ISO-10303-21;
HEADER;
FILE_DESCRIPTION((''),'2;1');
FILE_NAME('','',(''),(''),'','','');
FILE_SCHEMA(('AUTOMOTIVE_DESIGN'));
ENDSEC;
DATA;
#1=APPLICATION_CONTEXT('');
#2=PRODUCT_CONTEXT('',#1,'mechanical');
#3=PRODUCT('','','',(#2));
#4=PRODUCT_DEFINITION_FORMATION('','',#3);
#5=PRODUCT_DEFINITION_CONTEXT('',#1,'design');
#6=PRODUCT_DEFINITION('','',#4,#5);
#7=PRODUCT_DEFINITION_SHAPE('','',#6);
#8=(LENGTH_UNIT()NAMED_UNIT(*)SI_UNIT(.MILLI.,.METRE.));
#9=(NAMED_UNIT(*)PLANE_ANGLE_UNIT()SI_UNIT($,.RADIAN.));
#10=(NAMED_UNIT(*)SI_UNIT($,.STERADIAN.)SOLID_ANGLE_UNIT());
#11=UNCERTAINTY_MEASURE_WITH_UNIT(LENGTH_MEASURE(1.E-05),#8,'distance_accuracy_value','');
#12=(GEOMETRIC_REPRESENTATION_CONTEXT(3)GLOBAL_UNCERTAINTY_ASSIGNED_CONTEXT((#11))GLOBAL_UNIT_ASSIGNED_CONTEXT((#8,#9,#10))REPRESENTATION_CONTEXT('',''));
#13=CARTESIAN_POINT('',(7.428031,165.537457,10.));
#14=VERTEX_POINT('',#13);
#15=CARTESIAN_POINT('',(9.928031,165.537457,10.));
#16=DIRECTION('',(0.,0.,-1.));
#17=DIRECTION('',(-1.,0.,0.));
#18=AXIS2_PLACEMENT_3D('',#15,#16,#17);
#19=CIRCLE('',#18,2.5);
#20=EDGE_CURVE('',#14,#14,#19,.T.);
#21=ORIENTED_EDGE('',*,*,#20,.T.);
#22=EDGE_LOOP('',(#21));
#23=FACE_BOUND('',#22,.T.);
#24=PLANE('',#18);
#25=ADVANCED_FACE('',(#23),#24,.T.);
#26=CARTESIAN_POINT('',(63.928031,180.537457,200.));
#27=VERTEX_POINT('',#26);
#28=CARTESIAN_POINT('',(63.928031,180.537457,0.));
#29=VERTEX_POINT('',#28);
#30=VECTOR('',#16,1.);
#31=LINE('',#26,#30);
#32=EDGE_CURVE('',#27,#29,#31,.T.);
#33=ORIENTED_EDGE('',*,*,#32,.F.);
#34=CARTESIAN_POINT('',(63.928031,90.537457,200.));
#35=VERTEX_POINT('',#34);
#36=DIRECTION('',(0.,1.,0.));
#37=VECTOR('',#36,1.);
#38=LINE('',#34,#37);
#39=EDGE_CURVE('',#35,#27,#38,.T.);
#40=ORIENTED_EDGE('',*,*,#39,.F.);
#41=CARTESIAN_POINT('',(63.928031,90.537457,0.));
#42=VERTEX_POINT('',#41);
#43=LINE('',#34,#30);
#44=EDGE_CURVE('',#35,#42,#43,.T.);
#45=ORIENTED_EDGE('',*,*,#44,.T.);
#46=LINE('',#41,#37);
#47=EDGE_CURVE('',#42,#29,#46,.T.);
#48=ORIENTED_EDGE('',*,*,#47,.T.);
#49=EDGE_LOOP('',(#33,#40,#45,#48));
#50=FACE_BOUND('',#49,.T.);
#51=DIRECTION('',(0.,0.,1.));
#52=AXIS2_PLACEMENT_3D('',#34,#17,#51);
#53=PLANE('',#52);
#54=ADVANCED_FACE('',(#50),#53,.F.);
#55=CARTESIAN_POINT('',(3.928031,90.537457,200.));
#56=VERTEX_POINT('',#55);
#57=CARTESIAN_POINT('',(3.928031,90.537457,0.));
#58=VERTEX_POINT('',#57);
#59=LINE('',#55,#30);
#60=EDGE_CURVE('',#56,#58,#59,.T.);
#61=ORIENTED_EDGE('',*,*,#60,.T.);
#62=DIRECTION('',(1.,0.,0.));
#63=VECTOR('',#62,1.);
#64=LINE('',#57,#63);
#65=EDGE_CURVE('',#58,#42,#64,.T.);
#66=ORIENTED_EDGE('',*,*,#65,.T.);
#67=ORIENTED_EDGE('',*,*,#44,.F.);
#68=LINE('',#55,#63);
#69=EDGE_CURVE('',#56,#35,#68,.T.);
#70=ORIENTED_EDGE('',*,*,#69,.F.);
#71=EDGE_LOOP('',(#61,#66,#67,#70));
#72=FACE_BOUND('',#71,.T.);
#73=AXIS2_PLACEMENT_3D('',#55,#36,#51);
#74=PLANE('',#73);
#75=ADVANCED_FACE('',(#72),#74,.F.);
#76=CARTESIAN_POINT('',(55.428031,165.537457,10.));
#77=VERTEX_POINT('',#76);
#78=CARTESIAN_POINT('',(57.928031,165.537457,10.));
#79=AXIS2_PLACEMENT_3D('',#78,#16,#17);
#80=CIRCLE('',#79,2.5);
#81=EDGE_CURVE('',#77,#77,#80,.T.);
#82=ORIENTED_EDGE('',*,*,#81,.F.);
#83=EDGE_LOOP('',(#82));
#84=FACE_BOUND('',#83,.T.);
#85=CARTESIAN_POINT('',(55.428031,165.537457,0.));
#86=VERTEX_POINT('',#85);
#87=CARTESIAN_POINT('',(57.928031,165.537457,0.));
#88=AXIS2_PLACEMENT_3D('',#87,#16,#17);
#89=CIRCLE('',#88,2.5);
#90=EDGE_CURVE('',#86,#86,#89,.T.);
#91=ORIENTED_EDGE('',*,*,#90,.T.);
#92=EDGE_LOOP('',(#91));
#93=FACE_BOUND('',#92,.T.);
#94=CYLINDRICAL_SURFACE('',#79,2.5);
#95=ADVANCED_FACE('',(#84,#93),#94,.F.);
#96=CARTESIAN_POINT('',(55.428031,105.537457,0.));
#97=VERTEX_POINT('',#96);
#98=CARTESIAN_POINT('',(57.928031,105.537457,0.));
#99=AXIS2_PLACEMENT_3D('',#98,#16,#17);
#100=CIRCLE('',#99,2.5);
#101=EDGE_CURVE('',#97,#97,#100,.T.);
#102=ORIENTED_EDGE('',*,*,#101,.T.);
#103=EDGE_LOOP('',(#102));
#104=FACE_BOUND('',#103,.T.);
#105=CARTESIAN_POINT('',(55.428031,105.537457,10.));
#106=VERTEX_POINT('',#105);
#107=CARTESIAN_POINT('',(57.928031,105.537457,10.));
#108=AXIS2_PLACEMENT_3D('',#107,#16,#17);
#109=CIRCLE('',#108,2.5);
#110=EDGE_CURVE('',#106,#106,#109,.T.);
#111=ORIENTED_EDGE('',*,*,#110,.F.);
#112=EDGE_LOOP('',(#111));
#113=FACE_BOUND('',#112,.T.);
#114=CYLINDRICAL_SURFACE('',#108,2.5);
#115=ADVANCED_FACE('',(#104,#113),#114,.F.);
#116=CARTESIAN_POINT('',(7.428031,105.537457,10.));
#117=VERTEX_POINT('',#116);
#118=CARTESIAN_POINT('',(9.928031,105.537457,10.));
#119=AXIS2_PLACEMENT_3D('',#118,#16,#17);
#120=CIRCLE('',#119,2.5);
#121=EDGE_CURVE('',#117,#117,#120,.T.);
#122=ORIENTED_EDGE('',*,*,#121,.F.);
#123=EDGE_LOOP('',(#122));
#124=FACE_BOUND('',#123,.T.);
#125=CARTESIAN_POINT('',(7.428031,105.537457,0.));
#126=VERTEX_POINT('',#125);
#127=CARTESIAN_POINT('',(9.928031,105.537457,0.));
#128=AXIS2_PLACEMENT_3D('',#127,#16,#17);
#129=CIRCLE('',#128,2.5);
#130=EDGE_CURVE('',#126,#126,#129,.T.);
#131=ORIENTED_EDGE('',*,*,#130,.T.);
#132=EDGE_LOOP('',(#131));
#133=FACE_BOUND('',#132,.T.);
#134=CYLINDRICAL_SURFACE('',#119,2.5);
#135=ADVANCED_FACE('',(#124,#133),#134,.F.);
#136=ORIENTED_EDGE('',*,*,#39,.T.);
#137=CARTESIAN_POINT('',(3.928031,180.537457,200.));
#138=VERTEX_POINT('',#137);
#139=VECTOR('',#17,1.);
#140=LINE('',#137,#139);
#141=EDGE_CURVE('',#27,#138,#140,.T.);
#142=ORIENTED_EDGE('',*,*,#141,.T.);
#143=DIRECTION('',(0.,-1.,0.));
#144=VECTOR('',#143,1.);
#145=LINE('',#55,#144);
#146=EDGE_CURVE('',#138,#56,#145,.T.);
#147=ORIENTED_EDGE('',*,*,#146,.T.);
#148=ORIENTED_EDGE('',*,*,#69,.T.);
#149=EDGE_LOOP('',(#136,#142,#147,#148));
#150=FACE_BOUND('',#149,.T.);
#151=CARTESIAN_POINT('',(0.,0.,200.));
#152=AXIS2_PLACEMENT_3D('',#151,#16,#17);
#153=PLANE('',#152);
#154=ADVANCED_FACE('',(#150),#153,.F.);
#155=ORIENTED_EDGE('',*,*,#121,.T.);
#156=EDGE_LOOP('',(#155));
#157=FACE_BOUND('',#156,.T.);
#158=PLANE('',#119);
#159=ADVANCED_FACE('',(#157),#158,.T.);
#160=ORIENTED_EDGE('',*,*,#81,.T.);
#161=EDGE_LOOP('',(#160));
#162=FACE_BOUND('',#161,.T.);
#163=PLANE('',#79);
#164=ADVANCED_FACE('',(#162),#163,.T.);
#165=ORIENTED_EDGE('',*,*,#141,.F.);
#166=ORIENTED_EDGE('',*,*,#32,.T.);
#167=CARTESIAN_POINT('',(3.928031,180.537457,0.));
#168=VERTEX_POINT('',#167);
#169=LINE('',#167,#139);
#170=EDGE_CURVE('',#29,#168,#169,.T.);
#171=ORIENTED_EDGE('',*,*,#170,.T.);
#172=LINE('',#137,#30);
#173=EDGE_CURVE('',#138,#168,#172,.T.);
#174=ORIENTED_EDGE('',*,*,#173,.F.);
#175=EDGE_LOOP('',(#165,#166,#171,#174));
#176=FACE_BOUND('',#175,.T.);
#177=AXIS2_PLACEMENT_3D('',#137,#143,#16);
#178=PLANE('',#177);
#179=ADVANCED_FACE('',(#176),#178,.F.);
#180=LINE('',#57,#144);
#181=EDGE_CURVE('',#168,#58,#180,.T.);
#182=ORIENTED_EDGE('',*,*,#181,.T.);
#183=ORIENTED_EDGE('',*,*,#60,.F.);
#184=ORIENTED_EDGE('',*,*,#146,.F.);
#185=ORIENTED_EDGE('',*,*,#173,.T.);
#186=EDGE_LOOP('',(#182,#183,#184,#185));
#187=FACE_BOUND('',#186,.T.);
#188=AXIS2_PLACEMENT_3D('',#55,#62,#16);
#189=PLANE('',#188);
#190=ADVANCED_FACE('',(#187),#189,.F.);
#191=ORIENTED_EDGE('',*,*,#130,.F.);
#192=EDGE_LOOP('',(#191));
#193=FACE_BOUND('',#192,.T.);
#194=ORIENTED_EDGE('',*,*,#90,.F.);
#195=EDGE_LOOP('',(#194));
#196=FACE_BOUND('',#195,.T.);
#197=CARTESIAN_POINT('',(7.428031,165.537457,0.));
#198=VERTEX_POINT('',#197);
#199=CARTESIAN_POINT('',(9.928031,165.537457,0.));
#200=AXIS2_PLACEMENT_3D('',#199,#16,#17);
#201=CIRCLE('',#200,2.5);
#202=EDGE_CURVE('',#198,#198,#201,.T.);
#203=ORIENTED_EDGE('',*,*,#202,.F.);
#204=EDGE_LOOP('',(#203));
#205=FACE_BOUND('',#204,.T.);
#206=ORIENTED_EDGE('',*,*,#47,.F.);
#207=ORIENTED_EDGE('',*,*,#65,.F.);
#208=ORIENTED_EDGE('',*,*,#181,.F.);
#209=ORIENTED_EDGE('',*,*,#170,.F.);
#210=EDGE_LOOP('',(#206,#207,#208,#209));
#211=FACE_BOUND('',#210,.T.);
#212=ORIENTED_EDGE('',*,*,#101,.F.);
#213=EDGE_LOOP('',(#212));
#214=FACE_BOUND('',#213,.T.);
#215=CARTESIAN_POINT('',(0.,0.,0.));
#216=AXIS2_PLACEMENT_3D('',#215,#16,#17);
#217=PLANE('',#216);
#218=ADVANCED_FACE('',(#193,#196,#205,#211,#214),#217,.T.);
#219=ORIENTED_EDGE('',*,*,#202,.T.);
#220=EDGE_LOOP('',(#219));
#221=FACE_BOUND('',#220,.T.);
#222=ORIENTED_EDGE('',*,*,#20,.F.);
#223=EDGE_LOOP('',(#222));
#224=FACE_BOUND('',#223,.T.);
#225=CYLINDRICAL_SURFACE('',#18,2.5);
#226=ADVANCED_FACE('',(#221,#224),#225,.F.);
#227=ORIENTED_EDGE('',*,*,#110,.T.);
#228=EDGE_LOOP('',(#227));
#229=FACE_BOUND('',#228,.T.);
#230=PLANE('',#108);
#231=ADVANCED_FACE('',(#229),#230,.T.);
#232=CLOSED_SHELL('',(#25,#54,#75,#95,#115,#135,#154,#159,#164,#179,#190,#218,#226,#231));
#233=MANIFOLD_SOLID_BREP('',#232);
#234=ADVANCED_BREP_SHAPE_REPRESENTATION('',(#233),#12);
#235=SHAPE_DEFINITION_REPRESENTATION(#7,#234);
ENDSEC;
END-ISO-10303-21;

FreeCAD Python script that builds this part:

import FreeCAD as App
import Part
import Sketcher
from FreeCAD import Vector

doc = App.newDocument("Part")
body = doc.addObject("PartDesign::Body", "Body")

sketch1 = doc.addObject("Sketcher::SketchObject", "Sketch")
body.addObject(sketch1)
sketch1.AttachmentSupport = (doc.XY_Plane, [""])
sketch1.MapMode = "FlatFace"
sketch1.addGeometry(Part.LineSegment(Vector(4, 181, 0), Vector(4, 91, 0)), False)
sketch1.addGeometry(Part.LineSegment(Vector(4, 91, 0), Vector(64, 91, 0)), False)
sketch1.addGeometry(Part.LineSegment(Vector(64, 91, 0), Vector(64, 181, 0)), False)
sketch1.addGeometry(Part.LineSegment(Vector(64, 181, 0), Vector(4, 181, 0)), False)
sketch1.addConstraint(Sketcher.Constraint("Coincident", 0, 2, 1, 1))
sketch1.addConstraint(Sketcher.Constraint("Coincident", 1, 2, 2, 1))
sketch1.addConstraint(Sketcher.Constraint("Coincident", 2, 2, 3, 1))
sketch1.addConstraint(Sketcher.Constraint("Coincident", 3, 2, 0, 1))
sketch1.addConstraint(Sketcher.Constraint("Vertical", 0))
sketch1.addConstraint(Sketcher.Constraint("Horizontal", 1))
sketch1.addConstraint(Sketcher.Constraint("Vertical", 2))
sketch1.addConstraint(Sketcher.Constraint("Horizontal", 3))
sketch1.addConstraint(Sketcher.Constraint("DistanceX", 1, 1, 1, 2, 60.0))
sketch1.addConstraint(Sketcher.Constraint("DistanceY", 0, 2, 0, 1, 90.0))
sketch1.addConstraint(Sketcher.Constraint("DistanceX", -1, 1, 0, 2, 3.928031))
sketch1.addConstraint(Sketcher.Constraint("DistanceY", -1, 1, 0, 2, 90.537457))
pad1 = doc.addObject("PartDesign::Pad", "Pad")
body.addObject(pad1)
pad1.Profile = sketch1
pad1.Length = 200

sketch2 = doc.addObject("Sketcher::SketchObject", "Sketch001")
body.addObject(sketch2)
sketch2.AttachmentSupport = (doc.XY_Plane, [""])
sketch2.MapMode = "FlatFace"
sketch2.addGeometry(Part.Circle(Vector(57.9, 105.5, 0), Vector(0, 0, 1), 2.5), False)
sketch2.addGeometry(Part.Circle(Vector(9.9, 105.5, 0), Vector(0, 0, 1), 2.5), False)
sketch2.addGeometry(Part.Circle(Vector(9.9, 165.5, 0), Vector(0, 0, 1), 2.5), False)
sketch2.addGeometry(Part.Circle(Vector(57.9, 165.5, 0), Vector(0, 0, 1), 2.5), False)
sketch2.addConstraint(Sketcher.Constraint("Equal", 0, 1))
sketch2.addConstraint(Sketcher.Constraint("Equal", 1, 2))
sketch2.addConstraint(Sketcher.Constraint("Equal", 2, 3))
sketch2.addConstraint(Sketcher.Constraint("Horizontal", 0, 3, 1, 3))
sketch2.addConstraint(Sketcher.Constraint("Horizontal", 2, 3, 3, 3))
sketch2.addConstraint(Sketcher.Constraint("Vertical", 1, 3, 2, 3))
sketch2.addConstraint(Sketcher.Constraint("Vertical", 0, 3, 3, 3))
sketch2.addConstraint(Sketcher.Constraint("Diameter", 0, 5.0))
sketch2.addConstraint(Sketcher.Constraint("DistanceX", 1, 3, 0, 3, 48.0))
sketch2.addConstraint(Sketcher.Constraint("DistanceY", 1, 3, 2, 3, 60.0))
sketch2.addConstraint(Sketcher.Constraint("DistanceX", -1, 1, 0, 3, 57.928031))
sketch2.addConstraint(Sketcher.Constraint("DistanceY", -1, 1, 0, 3, 105.537457))
pocket1 = doc.addObject("PartDesign::Pocket", "Pocket")
body.addObject(pocket1)
pocket1.Profile = sketch2
pocket1.Length = 10
pocket1.Reversed = True

doc.recompute()
